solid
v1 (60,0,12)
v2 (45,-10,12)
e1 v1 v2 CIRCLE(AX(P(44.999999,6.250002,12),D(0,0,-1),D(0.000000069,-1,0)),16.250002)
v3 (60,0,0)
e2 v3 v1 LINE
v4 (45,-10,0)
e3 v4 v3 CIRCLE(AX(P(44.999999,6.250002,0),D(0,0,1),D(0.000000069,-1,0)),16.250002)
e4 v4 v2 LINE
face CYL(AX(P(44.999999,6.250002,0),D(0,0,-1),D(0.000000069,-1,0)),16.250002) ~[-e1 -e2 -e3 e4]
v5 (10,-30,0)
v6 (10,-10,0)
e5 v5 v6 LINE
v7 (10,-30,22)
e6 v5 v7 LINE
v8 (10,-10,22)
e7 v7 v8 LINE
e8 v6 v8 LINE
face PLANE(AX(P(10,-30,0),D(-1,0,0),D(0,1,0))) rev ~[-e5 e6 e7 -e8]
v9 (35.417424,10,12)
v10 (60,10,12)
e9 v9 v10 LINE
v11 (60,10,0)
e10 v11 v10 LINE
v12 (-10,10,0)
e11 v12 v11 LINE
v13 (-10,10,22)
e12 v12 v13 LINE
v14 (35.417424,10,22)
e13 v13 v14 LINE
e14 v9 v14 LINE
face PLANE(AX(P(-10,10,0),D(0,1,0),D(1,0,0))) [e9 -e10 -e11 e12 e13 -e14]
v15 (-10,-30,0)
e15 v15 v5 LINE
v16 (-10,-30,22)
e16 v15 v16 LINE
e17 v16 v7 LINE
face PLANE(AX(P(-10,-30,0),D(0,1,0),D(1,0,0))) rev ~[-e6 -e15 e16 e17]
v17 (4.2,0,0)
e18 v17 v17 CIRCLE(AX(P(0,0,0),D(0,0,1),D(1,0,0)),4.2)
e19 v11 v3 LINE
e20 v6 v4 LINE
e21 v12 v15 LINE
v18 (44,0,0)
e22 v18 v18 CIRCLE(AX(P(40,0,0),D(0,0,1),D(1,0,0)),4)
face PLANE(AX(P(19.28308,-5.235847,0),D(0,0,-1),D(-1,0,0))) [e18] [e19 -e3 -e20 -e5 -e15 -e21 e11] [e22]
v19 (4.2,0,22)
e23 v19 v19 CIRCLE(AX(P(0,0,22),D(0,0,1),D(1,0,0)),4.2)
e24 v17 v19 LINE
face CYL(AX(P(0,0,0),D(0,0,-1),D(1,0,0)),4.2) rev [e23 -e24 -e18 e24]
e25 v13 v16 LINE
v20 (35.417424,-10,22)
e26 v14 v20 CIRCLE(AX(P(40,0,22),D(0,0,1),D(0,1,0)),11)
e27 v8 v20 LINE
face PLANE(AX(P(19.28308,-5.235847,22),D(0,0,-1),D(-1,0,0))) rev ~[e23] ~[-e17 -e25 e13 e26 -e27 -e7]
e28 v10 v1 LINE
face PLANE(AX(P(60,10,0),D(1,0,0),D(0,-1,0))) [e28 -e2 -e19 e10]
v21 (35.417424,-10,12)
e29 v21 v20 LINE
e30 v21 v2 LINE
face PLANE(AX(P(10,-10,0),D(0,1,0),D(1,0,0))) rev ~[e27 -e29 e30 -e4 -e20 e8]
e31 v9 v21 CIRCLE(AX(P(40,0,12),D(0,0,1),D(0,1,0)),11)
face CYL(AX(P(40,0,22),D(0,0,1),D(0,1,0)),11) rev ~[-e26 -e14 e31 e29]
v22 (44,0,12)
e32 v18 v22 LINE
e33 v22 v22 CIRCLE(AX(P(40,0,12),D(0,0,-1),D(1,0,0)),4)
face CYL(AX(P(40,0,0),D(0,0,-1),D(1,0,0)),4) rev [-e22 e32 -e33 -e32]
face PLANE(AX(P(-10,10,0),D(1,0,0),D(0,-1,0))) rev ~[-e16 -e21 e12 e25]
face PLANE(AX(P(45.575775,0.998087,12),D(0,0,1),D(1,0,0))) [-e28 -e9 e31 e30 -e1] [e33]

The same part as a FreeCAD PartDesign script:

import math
import FreeCAD as App
import Part
import Sketcher
from FreeCAD import Vector
Q = App.Units.Quantity

doc = App.newDocument("Part")
params = doc.addObject("Spreadsheet::Sheet", "Params")
for row, (alias, value) in enumerate([
    ("sketch1_width", "70 mm"),
    ("sketch1_width2", "20 mm"),
    ("sketch1_width3", "35 mm"),
    ("sketch1_height", "40 mm"),
    ("pad1_length", "22 mm"),
    ("sketch2_diameter", "8 mm"),
    ("pocket1_length", "20 mm"),
    ("sketch3_radius", "11 mm"),
    ("sketch3_width", "5 mm"),
    ("sketch3_width2", "20.1 mm"),
    ("pocket2_length", "10 mm"),
    ("sketch4_diameter", "8.4 mm"),
    ("pocket3_length", "22 mm"),
], start=1):
    params.set(f"A{row}", alias)
    params.set(f"B{row}", "=" + value)
    params.setAlias(f"B{row}", alias)

body = doc.addObject("PartDesign::Body", "Body")

# Sketch on XY plane
sketch1 = body.newObject("Sketcher::SketchObject", "Sketch")
sketch1.AttachmentSupport = (doc.getObject("XY_Plane"), [""])
sketch1.MapMode = "FlatFace"
sketch1.addGeometry([
    Part.LineSegment(Vector(60, 10, 0), Vector(-10, 10, 0)),  # 0
    Part.LineSegment(Vector(-10, 10, 0), Vector(-10, -30, 0)),  # 1
    Part.LineSegment(Vector(-10, -30, 0), Vector(10, -30, 0)),  # 2
    Part.LineSegment(Vector(10, -30, 0), Vector(10, -10, 0)),  # 3
    Part.LineSegment(Vector(10, -10, 0), Vector(45, -10, 0)),  # 4
    Part.ArcOfCircle(Part.Circle(Vector(44.999999, 6.250002, 0), Vector(0, 0, 1), 16.250002), math.radians(-89.999996), math.radians(-22.619869)),  # 5
    Part.LineSegment(Vector(60, 0, 0), Vector(60, 10, 0)),  # 6
], False)
sketch1.addConstraint([
    Sketcher.Constraint("Coincident", 0, 2, 1, 1),
    Sketcher.Constraint("Coincident", 1, 2, 2, 1),
    Sketcher.Constraint("Coincident", 2, 2, 3, 1),
    Sketcher.Constraint("Coincident", 3, 2, 4, 1),
    Sketcher.Constraint("Tangent", 4, 2, 5, 1),
    Sketcher.Constraint("Coincident", 5, 2, 6, 1),
    Sketcher.Constraint("Coincident", 6, 2, 0, 1),
    Sketcher.Constraint("Horizontal", 0),
    Sketcher.Constraint("Vertical", 1),
    Sketcher.Constraint("Horizontal", 2),
    Sketcher.Constraint("Vertical", 3),
    Sketcher.Constraint("Horizontal", 4),
    Sketcher.Constraint("Vertical", 6),
    Sketcher.Constraint("Symmetric", 0, 2, 3, 2, -1, 1),
    Sketcher.Constraint("PointOnObject", 5, 2, -1),
    Sketcher.Constraint("Equal", 2, 3),
    Sketcher.Constraint("DistanceX", 0, 2, 0, 1, Q("70 mm")),
    Sketcher.Constraint("DistanceX", 2, 1, 2, 2, Q("20 mm")),
    Sketcher.Constraint("DistanceX", 4, 1, 4, 2, Q("35 mm")),
    Sketcher.Constraint("DistanceY", 1, 2, 1, 1, Q("40 mm")),
])
sketch1.setExpression("Constraints[16]", "Params.sketch1_width")
sketch1.setExpression("Constraints[17]", "Params.sketch1_width2")
sketch1.setExpression("Constraints[18]", "Params.sketch1_width3")
sketch1.setExpression("Constraints[19]", "Params.sketch1_height")
pad1 = body.newObject("PartDesign::Pad", "Pad")
pad1.Profile = sketch1
pad1.setExpression("Length", "Params.pad1_length")

# Sketch on XY plane
sketch2 = body.newObject("Sketcher::SketchObject", "Sketch001")
sketch2.AttachmentSupport = (doc.getObject("XY_Plane"), [""])
sketch2.MapMode = "FlatFace"
sketch2.addGeometry(Part.Circle(Vector(40, 0, 0), Vector(0, 0, 1), 4), False)
sketch2.addConstraint([
    Sketcher.Constraint("PointOnObject", 0, 3, -1),
    Sketcher.Constraint("Diameter", 0, Q("8 mm")),
    Sketcher.Constraint("DistanceX", -1, 1, 0, 3, Q("40 mm")),
])
sketch2.setExpression("Constraints[1]", "Params.sketch2_diameter")
pocket1 = body.newObject("PartDesign::Pocket", "Pocket")
pocket1.Profile = sketch2
pocket1.setExpression("Length", "Params.pocket1_length")
pocket1.Reversed = True

# Sketch on XY plane
sketch3 = body.newObject("Sketcher::SketchObject", "Sketch002")
sketch3.AttachmentSupport = (doc.getObject("XY_Plane"), [""])
sketch3.MapMode = "FlatFace"
sketch3.AttachmentOffset = App.Placement(Vector(0, 0, 22), App.Rotation())
sketch3.addGeometry([
    Part.ArcOfCircle(Part.Circle(Vector(40, 0, 0), Vector(0, 0, 1), 11), math.radians(90), math.radians(270)),  # 0
    Part.LineSegment(Vector(40, -11, 0), Vector(45, -11, 0)),  # 1
    Part.ArcOfCircle(Part.Circle(Vector(45.000001, 4.864089, 0), Vector(0, 0, 1), 15.864089), math.radians(-90.000005), math.radians(-17.855054)),  # 2
    Part.LineSegment(Vector(60.1, 0, 0), Vector(60.1, 11, 0)),  # 3
    Part.LineSegment(Vector(60.1, 11, 0), Vector(40, 11, 0)),  # 4
], False)
sketch3.addConstraint([
    Sketcher.Constraint("Tangent", 0, 2, 1, 1),
    Sketcher.Constraint("Tangent", 1, 2, 2, 1),
    Sketcher.Constraint("Coincident", 2, 2, 3, 1),
    Sketcher.Constraint("Coincident", 3, 2, 4, 1),
    Sketcher.Constraint("Tangent", 4, 2, 0, 1),
    Sketcher.Constraint("Horizontal", 1),
    Sketcher.Constraint("Vertical", 3),
    Sketcher.Constraint("Horizontal", 4),
    Sketcher.Constraint("PointOnObject", 0, 3, -1),
    Sketcher.Constraint("PointOnObject", 2, 2, -1),
    Sketcher.Constraint("Radius", 0, Q("11 mm")),
    Sketcher.Constraint("DistanceX", 1, 1, 1, 2, Q("5 mm")),
    Sketcher.Constraint("DistanceX", 4, 2, 4, 1, Q("20.1 mm")),
    Sketcher.Constraint("DistanceX", -1, 1, 0, 3, Q("40 mm")),
])
sketch3.setExpression("Constraints[10]", "Params.sketch3_radius")
sketch3.setExpression("Constraints[11]", "Params.sketch3_width")
sketch3.setExpression("Constraints[12]", "Params.sketch3_width2")
pocket2 = body.newObject("PartDesign::Pocket", "Pocket001")
pocket2.Profile = sketch3
pocket2.setExpression("Length", "Params.pocket2_length")

# Sketch on XY plane
sketch4 = body.newObject("Sketcher::SketchObject", "Sketch003")
sketch4.AttachmentSupport = (doc.getObject("XY_Plane"), [""])
sketch4.MapMode = "FlatFace"
sketch4.addGeometry(Part.Circle(Vector(0, 0, 0), Vector(0, 0, 1), 4.2), False)
sketch4.addConstraint([
    Sketcher.Constraint("Coincident", 0, 3, -1, 1),
    Sketcher.Constraint("Diameter", 0, Q("8.4 mm")),
])
sketch4.setExpression("Constraints[1]", "Params.sketch4_diameter")
pocket3 = body.newObject("PartDesign::Pocket", "Pocket002")
pocket3.Profile = sketch4
pocket3.setExpression("Length", "Params.pocket3_length")
pocket3.Reversed = True

doc.recompute()
